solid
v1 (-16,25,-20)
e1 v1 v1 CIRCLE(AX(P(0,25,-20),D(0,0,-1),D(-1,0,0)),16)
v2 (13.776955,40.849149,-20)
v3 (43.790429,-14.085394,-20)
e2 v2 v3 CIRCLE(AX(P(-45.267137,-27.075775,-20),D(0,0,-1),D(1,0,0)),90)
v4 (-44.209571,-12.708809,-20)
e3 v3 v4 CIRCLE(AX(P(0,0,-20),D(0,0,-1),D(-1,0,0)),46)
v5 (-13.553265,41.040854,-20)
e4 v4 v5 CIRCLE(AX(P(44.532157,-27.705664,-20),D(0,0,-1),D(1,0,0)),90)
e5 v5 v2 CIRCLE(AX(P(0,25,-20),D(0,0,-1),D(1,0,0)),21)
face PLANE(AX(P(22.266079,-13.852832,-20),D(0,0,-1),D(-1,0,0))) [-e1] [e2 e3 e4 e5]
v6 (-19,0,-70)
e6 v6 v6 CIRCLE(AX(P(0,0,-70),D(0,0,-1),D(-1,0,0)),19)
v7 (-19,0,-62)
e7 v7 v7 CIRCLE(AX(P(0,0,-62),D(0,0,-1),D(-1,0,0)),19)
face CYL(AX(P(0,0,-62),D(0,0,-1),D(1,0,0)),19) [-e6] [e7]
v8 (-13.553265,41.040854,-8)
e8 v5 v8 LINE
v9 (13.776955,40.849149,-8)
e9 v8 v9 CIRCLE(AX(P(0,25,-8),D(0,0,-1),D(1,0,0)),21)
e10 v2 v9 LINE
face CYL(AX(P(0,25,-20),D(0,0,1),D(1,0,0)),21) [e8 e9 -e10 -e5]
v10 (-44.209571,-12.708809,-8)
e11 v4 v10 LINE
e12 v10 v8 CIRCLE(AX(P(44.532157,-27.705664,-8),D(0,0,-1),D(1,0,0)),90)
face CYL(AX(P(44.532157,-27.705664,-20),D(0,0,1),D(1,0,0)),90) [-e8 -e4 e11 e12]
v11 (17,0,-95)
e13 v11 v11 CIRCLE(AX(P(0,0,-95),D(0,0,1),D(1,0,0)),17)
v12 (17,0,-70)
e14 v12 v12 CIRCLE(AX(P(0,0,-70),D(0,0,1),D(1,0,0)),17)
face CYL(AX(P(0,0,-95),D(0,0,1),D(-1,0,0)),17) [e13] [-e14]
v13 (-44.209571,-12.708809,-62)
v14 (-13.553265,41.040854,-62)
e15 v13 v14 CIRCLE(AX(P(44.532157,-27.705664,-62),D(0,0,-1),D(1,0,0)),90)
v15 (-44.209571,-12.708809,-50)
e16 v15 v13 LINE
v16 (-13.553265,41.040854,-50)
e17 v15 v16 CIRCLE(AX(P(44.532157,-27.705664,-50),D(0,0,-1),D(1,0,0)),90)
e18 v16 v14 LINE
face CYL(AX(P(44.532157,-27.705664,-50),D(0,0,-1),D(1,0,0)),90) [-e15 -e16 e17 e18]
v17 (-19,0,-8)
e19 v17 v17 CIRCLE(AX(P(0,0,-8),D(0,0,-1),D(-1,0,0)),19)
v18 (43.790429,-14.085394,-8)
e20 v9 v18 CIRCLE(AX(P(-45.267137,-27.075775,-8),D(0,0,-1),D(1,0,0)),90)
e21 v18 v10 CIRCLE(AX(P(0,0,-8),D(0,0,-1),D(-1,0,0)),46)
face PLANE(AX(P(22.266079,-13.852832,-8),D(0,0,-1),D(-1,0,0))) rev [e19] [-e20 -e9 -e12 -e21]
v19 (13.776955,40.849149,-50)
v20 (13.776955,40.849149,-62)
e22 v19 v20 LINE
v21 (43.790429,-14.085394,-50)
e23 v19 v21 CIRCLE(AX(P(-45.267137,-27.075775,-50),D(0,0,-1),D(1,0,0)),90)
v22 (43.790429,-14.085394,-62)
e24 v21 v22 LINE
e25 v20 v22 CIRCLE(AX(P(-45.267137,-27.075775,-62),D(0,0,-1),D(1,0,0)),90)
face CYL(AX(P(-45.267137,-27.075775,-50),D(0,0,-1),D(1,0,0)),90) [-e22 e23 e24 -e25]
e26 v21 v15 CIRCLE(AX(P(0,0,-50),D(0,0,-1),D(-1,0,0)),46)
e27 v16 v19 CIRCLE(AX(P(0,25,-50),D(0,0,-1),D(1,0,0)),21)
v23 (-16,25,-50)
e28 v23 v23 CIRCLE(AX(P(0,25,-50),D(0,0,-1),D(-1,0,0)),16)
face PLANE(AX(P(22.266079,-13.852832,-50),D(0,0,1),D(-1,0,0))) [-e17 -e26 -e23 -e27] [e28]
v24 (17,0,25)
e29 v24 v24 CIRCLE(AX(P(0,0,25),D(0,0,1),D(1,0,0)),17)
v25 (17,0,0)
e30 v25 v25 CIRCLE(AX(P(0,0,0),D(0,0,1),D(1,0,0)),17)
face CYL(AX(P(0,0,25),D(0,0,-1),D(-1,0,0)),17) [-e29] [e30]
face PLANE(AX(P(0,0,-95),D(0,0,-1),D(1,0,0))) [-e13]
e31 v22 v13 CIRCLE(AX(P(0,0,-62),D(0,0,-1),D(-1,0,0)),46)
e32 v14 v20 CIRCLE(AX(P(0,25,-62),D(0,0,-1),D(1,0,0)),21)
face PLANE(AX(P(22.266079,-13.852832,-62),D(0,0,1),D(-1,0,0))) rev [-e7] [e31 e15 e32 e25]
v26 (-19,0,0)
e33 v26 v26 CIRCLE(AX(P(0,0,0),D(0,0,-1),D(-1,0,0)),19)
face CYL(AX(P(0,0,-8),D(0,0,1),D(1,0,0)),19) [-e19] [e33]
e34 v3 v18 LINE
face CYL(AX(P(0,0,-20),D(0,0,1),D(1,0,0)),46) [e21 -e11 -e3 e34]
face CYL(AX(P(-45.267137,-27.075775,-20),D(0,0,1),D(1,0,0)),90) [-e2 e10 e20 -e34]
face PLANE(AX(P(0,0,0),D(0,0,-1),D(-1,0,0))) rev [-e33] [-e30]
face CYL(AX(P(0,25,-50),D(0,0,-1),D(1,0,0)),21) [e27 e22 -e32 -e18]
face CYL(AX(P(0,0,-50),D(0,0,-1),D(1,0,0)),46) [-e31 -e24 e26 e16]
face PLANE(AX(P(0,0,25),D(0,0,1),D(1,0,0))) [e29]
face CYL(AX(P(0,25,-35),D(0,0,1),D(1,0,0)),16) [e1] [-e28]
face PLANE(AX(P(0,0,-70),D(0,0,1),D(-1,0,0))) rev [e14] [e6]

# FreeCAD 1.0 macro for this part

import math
import FreeCAD as App
import Part
import Sketcher

V = App.Vector
Q = App.Units.Quantity

doc = App.newDocument("Part")
params = doc.addObject("Spreadsheet::Sheet", "Params")
for row, (alias, value) in enumerate([
    ("sketch1_diameter", "34 mm"),
    ("pad1_length", "25 mm"),
    ("sketch2_diameter", "38 mm"),
    ("pad2_length", "8 mm"),
    ("sketch3_radius", "90 mm"),
    ("sketch3_radius2", "46 mm"),
    ("sketch3_radius3", "21 mm"),
    ("pad3_length", "12 mm"),
    ("sketch4_diameter", "32 mm"),
    ("pad4_length", "15 mm"),
], start=1):
    params.set(f"A{row}", alias)
    params.set(f"B{row}", "=" + value)
    params.setAlias(f"B{row}", alias)

body = doc.addObject("PartDesign::Body", "Body")

sketch1 = doc.addObject("Sketcher::SketchObject", "Sketch")
body.addObject(sketch1)
sketch1.AttachmentSupport = (doc.XY_Plane, [""])
sketch1.MapMode = "FlatFace"
sketch1.addGeometry(Part.Circle(V(0, 0, 0), V(0, 0, 1), 17), False)
sketch1.addConstraint(Sketcher.Constraint("Coincident", 0, 3, -1, 1))
sketch1.addConstraint(Sketcher.Constraint("Diameter", 0, Q("34 mm")))
sketch1.setExpression("Constraints[1]", "Params.sketch1_diameter")
pad1 = doc.addObject("PartDesign::Pad", "Pad")
body.addObject(pad1)
pad1.Profile = sketch1
pad1.setExpression("Length", "Params.pad1_length")

sketch2 = doc.addObject("Sketcher::SketchObject", "Sketch001")
body.addObject(sketch2)
sketch2.AttachmentSupport = (doc.XY_Plane, [""])
sketch2.MapMode = "FlatFace"
sketch2.addGeometry(Part.Circle(V(0, 0, 0), V(0, 0, 1), 19), False)
sketch2.addConstraint(Sketcher.Constraint("Coincident", 0, 3, -1, 1))
sketch2.addConstraint(Sketcher.Constraint("Diameter", 0, Q("38 mm")))
sketch2.setExpression("Constraints[1]", "Params.sketch2_diameter")
pad2 = doc.addObject("PartDesign::Pad", "Pad001")
body.addObject(pad2)
pad2.Profile = sketch2
pad2.setExpression("Length", "Params.pad2_length")
pad2.Reversed = True

sketch3 = doc.addObject("Sketcher::SketchObject", "Sketch002")
body.addObject(sketch3)
sketch3.AttachmentSupport = (doc.XY_Plane, [""])
sketch3.MapMode = "FlatFace"
sketch3.AttachmentOffset = App.Placement(V(0, 0, -8), App.Rotation())
sketch3.addGeometry(Part.ArcOfCircle(Part.Circle(V(-45, -27, 0), V(0, 0, 1), 90), math.radians(8), math.radians(49)), False)
sketch3.addGeometry(Part.ArcOfCircle(Part.Circle(V(0, 0, 0), V(0, 0, 1), 46), math.radians(-164), math.radians(-18)), False)
sketch3.addGeometry(Part.ArcOfCircle(Part.Circle(V(45, -28, 0), V(0, 0, 1), 90), math.radians(130), math.radians(170)), False)
sketch3.addGeometry(Part.ArcOfCircle(Part.Circle(V(0, 25, 0), V(0, 0, 1), 21), math.radians(49), math.radians(130)), False)
sketch3.addConstraint(Sketcher.Constraint("Coincident", 0, 1, 1, 2))
sketch3.addConstraint(Sketcher.Constraint("Coincident", 1, 1, 2, 2))
sketch3.addConstraint(Sketcher.Constraint("Tangent", 2, 1, 3, 2))
sketch3.addConstraint(Sketcher.Constraint("Tangent", 3, 1, 0, 2))
sketch3.addConstraint(Sketcher.Constraint("Coincident", 1, 3, -1, 1))
sketch3.addConstraint(Sketcher.Constraint("Equal", 0, 2))
sketch3.addConstraint(Sketcher.Constraint("PointOnObject", 3, 3, -2))
sketch3.addConstraint(Sketcher.Constraint("Radius", 0, Q("90 mm")))
sketch3.addConstraint(Sketcher.Constraint("Radius", 1, Q("46 mm")))
sketch3.addConstraint(Sketcher.Constraint("Radius", 3, Q("21 mm")))
sketch3.addConstraint(Sketcher.Constraint("DistanceY", -1, 1, 3, 3, Q("25 mm")))
sketch3.addConstraint(Sketcher.Constraint("DistanceX", 1, 1, 0, 1, Q("88 mm")))
sketch3.addConstraint(Sketcher.Constraint("DistanceX", -1, 1, 0, 1, Q("43.790429 mm")))
sketch3.setExpression("Constraints[7]", "Params.sketch3_radius")
sketch3.setExpression("Constraints[8]", "Params.sketch3_radius2")
sketch3.setExpression("Constraints[9]", "Params.sketch3_radius3")
pad3 = doc.addObject("PartDesign::Pad", "Pad002")
body.addObject(pad3)
pad3.Profile = sketch3
pad3.setExpression("Length", "Params.pad3_length")
pad3.Reversed = True

sketch4 = doc.addObject("Sketcher::SketchObject", "Sketch003")
body.addObject(sketch4)
sketch4.AttachmentSupport = (doc.XY_Plane, [""])
sketch4.MapMode = "FlatFace"
sketch4.AttachmentOffset = App.Placement(V(0, 0, -20), App.Rotation())
sketch4.addGeometry(Part.Circle(V(0, 25, 0), V(0, 0, 1), 16), False)
sketch4.addConstraint(Sketcher.Constraint("PointOnObject", 0, 3, -2))
sketch4.addConstraint(Sketcher.Constraint("Diameter", 0, Q("32 mm")))
sketch4.addConstraint(Sketcher.Constraint("DistanceY", -1, 1, 0, 3, Q("25 mm")))
sketch4.setExpression("Constraints[1]", "Params.sketch4_diameter")
pad4 = doc.addObject("PartDesign::Pad", "Pad003")
body.addObject(pad4)
pad4.Profile = sketch4
pad4.setExpression("Length", "Params.pad4_length")
pad4.Reversed = True
body2 = doc.addObject("PartDesign::Body", "Body001")
doc.recompute()

body2.BaseFeature = body
doc.recompute()

mirroring = doc.addObject("Part::Mirroring", "Mirroring")
mirroring.Source = body
mirroring.Base = V(0, 25, -35)
mirroring.Normal = V(0, 0, -1)
body3 = doc.addObject("PartDesign::Body", "Body002")
body3.BaseFeature = mirroring
boolean = doc.addObject("PartDesign::Boolean", "Boolean")
body2.addObject(boolean)
boolean.Type = "Fuse"
boolean.addObjects([body3])
doc.recompute()
mirroring.Visibility = False

doc.recompute()
